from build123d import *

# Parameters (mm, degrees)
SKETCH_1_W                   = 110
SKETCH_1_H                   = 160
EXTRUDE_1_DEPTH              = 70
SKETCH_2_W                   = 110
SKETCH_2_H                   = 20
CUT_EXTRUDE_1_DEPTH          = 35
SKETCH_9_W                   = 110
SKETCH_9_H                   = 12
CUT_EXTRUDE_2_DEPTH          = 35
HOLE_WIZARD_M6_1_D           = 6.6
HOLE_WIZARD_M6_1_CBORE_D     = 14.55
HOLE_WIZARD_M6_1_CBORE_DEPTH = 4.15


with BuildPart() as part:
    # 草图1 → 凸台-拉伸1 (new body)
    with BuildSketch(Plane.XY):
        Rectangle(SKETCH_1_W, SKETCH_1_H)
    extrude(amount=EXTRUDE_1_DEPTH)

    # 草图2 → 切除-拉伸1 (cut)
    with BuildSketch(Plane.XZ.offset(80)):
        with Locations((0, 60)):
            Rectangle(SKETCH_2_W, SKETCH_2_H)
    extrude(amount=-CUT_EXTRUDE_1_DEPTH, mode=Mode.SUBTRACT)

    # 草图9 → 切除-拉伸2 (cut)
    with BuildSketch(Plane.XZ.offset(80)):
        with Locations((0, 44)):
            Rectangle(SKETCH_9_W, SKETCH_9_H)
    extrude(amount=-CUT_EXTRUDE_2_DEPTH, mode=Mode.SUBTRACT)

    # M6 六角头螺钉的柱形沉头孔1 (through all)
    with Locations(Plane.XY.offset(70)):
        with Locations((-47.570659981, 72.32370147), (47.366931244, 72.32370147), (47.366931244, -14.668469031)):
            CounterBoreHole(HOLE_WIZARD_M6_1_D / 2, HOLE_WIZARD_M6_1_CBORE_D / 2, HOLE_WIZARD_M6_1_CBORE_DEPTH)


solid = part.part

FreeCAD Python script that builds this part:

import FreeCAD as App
import Part
import Sketcher


def add_polygon(sketch, points):
    """Adds a closed chain of lines whose ends are joined by coincident constraints."""
    first, n = sketch.GeometryCount, len(points)
    for a, b in zip(points, points[1:] + points[:1]):
        sketch.addGeometry(Part.LineSegment(App.Vector(*a, 0), App.Vector(*b, 0)), False)
    for i in range(n):
        sketch.addConstraint(Sketcher.Constraint("Coincident", first + i, 2, first + (i + 1) % n, 1))

doc = App.newDocument("Part")
body = doc.addObject("PartDesign::Body", "Body")

# Sketch on XY plane
sketch1 = body.newObject("Sketcher::SketchObject", "Sketch")
sketch1.AttachmentSupport = (doc.getObject("XY_Plane"), [""])
sketch1.MapMode = "FlatFace"
add_polygon(sketch1, [(-55, 80), (-55, -80), (55, -80), (55, 80)])  # lines 0-3
sketch1.addConstraint(Sketcher.Constraint("Vertical", 0))
sketch1.addConstraint(Sketcher.Constraint("Horizontal", 1))
sketch1.addConstraint(Sketcher.Constraint("Vertical", 2))
sketch1.addConstraint(Sketcher.Constraint("Horizontal", 3))
sketch1.addConstraint(Sketcher.Constraint("Symmetric", 0, 2, 2, 2, -1, 1))
sketch1.addConstraint(Sketcher.Constraint("DistanceX", 1, 1, 1, 2, 110.0))
sketch1.addConstraint(Sketcher.Constraint("DistanceY", 0, 2, 0, 1, 160.0))
pad1 = body.newObject("PartDesign::Pad", "Pad")
pad1.Profile = sketch1
pad1.Length = 70

# Sketch on XZ plane
sketch2 = body.newObject("Sketcher::SketchObject", "Sketch001")
sketch2.AttachmentSupport = (doc.getObject("XZ_Plane"), [""])
sketch2.MapMode = "FlatFace"
sketch2.AttachmentOffset = App.Placement(App.Vector(0, 0, 80), App.Rotation())
add_polygon(sketch2, [(-55, 70), (-55, 50), (55, 50), (55, 70)])  # lines 0-3
sketch2.addConstraint(Sketcher.Constraint("Vertical", 0))
sketch2.addConstraint(Sketcher.Constraint("Horizontal", 1))
sketch2.addConstraint(Sketcher.Constraint("Vertical", 2))
sketch2.addConstraint(Sketcher.Constraint("Horizontal", 3))
sketch2.addConstraint(Sketcher.Constraint("DistanceX", 1, 1, 1, 2, 110.0))
sketch2.addConstraint(Sketcher.Constraint("DistanceY", 0, 2, 0, 1, 20.0))
sketch2.addConstraint(Sketcher.Constraint("DistanceX", 0, 2, -1, 1, 55.0))
sketch2.addConstraint(Sketcher.Constraint("DistanceY", -1, 1, 0, 2, 50.0))
pocket1 = body.newObject("PartDesign::Pocket", "Pocket")
pocket1.Profile = sketch2
pocket1.Length = 35

# Sketch on XZ plane
sketch3 = body.newObject("Sketcher::SketchObject", "Sketch002")
sketch3.AttachmentSupport = (doc.getObject("XZ_Plane"), [""])
sketch3.MapMode = "FlatFace"
sketch3.AttachmentOffset = App.Placement(App.Vector(0, 0, 80), App.Rotation())
add_polygon(sketch3, [(-55, 50), (-55, 38), (55, 38), (55, 50)])  # lines 0-3
sketch3.addConstraint(Sketcher.Constraint("Vertical", 0))
sketch3.addConstraint(Sketcher.Constraint("Horizontal", 1))
sketch3.addConstraint(Sketcher.Constraint("Vertical", 2))
sketch3.addConstraint(Sketcher.Constraint("Horizontal", 3))
sketch3.addConstraint(Sketcher.Constraint("DistanceX", 1, 1, 1, 2, 110.0))
sketch3.addConstraint(Sketcher.Constraint("DistanceY", 0, 2, 0, 1, 12.0))
sketch3.addConstraint(Sketcher.Constraint("DistanceX", 0, 2, -1, 1, 55.0))
sketch3.addConstraint(Sketcher.Constraint("DistanceY", -1, 1, 0, 2, 38.0))
pocket2 = body.newObject("PartDesign::Pocket", "Pocket001")
pocket2.Profile = sketch3
pocket2.Length = 35

# Sketch on XY plane
sketch4 = body.newObject("Sketcher::SketchObject", "Sketch003")
sketch4.AttachmentSupport = (doc.getObject("XY_Plane"), [""])
sketch4.MapMode = "FlatFace"
sketch4.AttachmentOffset = App.Placement(App.Vector(0, 0, 70), App.Rotation())
sketch4.addGeometry(Part.Circle(App.Vector(-47.57066, 72.323701, 0), App.Vector(0, 0, 1), 3.3), False)
sketch4.addGeometry(Part.Circle(App.Vector(47.366931, 72.323701, 0), App.Vector(0, 0, 1), 3.3), False)
sketch4.addGeometry(Part.Circle(App.Vector(47.366931, -14.668469, 0), App.Vector(0, 0, 1), 3.3), False)
sketch4.addConstraint(Sketcher.Constraint("Equal", 0, 1))
sketch4.addConstraint(Sketcher.Constraint("Equal", 1, 2))
sketch4.addConstraint(Sketcher.Constraint("Horizontal", 0, 3, 1, 3))
sketch4.addConstraint(Sketcher.Constraint("Vertical", 1, 3, 2, 3))
sketch4.addConstraint(Sketcher.Constraint("Diameter", 0, 6.6))
sketch4.addConstraint(Sketcher.Constraint("DistanceY", -1, 1, 0, 3, 72.323701))
sketch4.addConstraint(Sketcher.Constraint("DistanceX", 0, 3, -1, 1, 47.57066))
sketch4.addConstraint(Sketcher.Constraint("DistanceX", -1, 1, 1, 3, 47.366931))
sketch4.addConstraint(Sketcher.Constraint("DistanceY", 2, 3, -1, 1, 14.668469))
doc.recompute()
hole = body.newObject("PartDesign::Hole", "Hole")
hole.Profile = sketch4
hole.ThreadType = "None"
hole.Diameter = 6.6
hole.DepthType = "ThroughAll"
hole.HoleCutType = "Counterbore"
hole.HoleCutDiameter = 14.55
hole.HoleCutDepth = 4.15

doc.recompute()
